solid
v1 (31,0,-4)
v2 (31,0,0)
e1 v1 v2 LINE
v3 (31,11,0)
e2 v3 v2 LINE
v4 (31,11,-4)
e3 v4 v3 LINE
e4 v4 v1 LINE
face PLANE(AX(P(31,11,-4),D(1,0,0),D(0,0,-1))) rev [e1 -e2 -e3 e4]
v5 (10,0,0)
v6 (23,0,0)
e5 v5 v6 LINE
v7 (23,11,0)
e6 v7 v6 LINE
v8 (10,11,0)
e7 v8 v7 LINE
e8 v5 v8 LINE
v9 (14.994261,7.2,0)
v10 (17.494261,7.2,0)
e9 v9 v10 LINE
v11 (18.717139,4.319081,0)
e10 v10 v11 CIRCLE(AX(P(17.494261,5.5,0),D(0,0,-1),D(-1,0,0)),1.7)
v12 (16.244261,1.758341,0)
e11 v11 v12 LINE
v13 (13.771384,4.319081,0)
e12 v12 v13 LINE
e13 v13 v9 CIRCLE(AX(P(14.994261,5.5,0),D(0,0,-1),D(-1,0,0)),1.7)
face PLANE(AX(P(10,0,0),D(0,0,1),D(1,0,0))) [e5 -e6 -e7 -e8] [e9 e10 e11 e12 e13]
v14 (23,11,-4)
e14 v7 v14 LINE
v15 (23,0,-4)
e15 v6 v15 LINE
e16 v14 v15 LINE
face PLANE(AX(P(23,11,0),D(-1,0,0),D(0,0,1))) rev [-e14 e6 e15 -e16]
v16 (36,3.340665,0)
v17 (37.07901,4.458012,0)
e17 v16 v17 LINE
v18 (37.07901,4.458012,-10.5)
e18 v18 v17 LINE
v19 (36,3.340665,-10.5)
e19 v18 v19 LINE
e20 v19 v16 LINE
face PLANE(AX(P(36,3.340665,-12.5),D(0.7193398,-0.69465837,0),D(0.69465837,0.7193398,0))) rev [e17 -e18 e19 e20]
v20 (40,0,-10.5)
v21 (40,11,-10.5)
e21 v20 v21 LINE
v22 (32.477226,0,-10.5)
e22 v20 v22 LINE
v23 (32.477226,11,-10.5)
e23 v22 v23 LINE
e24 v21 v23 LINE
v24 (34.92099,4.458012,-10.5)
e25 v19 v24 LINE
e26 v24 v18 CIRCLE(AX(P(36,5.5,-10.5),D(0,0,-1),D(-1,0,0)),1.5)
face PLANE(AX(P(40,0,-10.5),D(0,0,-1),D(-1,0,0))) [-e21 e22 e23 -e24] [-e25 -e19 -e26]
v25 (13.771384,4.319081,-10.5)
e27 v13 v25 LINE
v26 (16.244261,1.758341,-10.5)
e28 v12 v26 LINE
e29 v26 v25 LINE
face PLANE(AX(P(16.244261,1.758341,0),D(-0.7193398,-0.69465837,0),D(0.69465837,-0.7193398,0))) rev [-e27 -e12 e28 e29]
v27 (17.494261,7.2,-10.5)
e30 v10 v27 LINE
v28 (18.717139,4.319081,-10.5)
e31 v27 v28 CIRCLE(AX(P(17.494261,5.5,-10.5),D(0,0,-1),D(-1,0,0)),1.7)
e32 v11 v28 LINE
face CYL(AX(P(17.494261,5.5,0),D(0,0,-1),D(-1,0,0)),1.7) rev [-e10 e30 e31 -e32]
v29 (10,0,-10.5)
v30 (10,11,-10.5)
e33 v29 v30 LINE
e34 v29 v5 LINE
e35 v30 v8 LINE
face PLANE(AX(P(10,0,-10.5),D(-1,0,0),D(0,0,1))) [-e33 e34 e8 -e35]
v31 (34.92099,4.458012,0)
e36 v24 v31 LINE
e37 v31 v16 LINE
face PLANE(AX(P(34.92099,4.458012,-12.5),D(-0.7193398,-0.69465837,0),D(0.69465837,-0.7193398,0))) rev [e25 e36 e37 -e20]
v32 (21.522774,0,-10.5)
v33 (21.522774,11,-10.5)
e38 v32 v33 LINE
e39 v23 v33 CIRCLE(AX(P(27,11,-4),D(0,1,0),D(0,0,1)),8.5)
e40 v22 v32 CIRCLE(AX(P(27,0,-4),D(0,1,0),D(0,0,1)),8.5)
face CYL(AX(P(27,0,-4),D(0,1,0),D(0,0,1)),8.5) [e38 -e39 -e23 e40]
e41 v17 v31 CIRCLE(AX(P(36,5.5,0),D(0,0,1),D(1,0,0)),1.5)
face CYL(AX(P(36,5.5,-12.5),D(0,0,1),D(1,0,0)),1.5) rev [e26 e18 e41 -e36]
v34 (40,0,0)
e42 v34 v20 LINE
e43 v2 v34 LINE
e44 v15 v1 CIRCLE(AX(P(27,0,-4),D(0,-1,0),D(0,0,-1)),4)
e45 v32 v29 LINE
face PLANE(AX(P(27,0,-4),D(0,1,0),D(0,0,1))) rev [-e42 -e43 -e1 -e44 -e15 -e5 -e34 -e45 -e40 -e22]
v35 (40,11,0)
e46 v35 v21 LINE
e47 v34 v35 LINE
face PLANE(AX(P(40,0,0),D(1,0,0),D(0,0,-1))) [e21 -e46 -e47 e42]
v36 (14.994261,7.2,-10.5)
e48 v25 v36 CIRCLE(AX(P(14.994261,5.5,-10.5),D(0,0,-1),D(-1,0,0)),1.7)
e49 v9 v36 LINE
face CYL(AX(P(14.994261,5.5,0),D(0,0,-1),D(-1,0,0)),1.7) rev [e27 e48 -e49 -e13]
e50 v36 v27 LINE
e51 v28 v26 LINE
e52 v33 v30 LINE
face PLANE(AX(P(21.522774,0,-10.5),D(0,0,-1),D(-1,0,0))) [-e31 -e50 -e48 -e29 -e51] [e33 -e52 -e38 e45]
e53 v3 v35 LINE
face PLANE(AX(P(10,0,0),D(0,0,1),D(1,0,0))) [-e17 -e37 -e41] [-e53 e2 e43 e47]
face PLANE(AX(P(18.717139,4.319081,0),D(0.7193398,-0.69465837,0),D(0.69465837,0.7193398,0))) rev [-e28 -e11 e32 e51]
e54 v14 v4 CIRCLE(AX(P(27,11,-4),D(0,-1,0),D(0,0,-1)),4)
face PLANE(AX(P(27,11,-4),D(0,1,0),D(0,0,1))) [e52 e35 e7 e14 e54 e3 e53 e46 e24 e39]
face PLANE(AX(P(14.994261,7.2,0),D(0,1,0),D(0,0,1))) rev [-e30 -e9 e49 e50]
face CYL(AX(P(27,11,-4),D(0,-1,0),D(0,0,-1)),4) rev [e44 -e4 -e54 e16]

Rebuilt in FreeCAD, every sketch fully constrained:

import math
import FreeCAD as App
import Part
import Sketcher
Q = App.Units.Quantity

doc = App.newDocument("Part")
body = doc.addObject("PartDesign::Body", "Body")

# Sketch on XZ plane
sketch1 = body.newObject("Sketcher::SketchObject", "Sketch")
sketch1.AttachmentSupport = (doc.getObject("XZ_Plane"), [""])
sketch1.MapMode = "FlatFace"
sketch1.AttachmentOffset = App.Placement(App.Vector(0, 0, -11), App.Rotation())
sketch1.addGeometry(Part.LineSegment(App.Vector(10, 0, 0), App.Vector(40, 0, 0)), False)
sketch1.addGeometry(Part.LineSegment(App.Vector(40, 0, 0), App.Vector(40, -10, 0)), False)
sketch1.addGeometry(Part.LineSegment(App.Vector(40, -10, 0), App.Vector(32, -10, 0)), False)
sketch1.addGeometry(Part.ArcOfCircle(Part.Circle(App.Vector(27, -4, 0), App.Vector(0, 0, 1), 8), math.radians(-130), math.radians(-50)), False)
sketch1.addGeometry(Part.LineSegment(App.Vector(22, -10, 0), App.Vector(10, -10, 0)), False)
sketch1.addGeometry(Part.LineSegment(App.Vector(10, -10, 0), App.Vector(10, 0, 0)), False)
sketch1.addConstraint(Sketcher.Constraint("Coincident", 0, 2, 1, 1))
sketch1.addConstraint(Sketcher.Constraint("Coincident", 1, 2, 2, 1))
sketch1.addConstraint(Sketcher.Constraint("Coincident", 2, 2, 3, 2))
sketch1.addConstraint(Sketcher.Constraint("Coincident", 3, 1, 4, 1))
sketch1.addConstraint(Sketcher.Constraint("Coincident", 4, 2, 5, 1))
sketch1.addConstraint(Sketcher.Constraint("Coincident", 5, 2, 0, 1))
sketch1.addConstraint(Sketcher.Constraint("Horizontal", 0))
sketch1.addConstraint(Sketcher.Constraint("Vertical", 1))
sketch1.addConstraint(Sketcher.Constraint("Horizontal", 2))
sketch1.addConstraint(Sketcher.Constraint("Horizontal", 4))
sketch1.addConstraint(Sketcher.Constraint("Vertical", 5))
sketch1.addConstraint(Sketcher.Constraint("PointOnObject", 0, 2, -1))
sketch1.addConstraint(Sketcher.Constraint("Horizontal", 2, 2, 3, 1))
sketch1.addConstraint(Sketcher.Constraint("Radius", 3, Q("8.5 mm")))
sketch1.addConstraint(Sketcher.Constraint("DistanceX", 0, 1, 0, 2, Q("30 mm")))
sketch1.addConstraint(Sketcher.Constraint("DistanceY", 1, 2, 1, 1, Q("10.5 mm")))
sketch1.addConstraint(Sketcher.Constraint("DistanceX", -1, 1, 3, 3, Q("27 mm")))
sketch1.addConstraint(Sketcher.Constraint("DistanceY", 3, 3, -1, 1, Q("4 mm")))
sketch1.addConstraint(Sketcher.Constraint("DistanceX", -1, 1, 0, 2, Q("40 mm")))
pad1 = body.newObject("PartDesign::Pad", "Pad")
pad1.Profile = sketch1
pad1.Length = 11

# Sketch on XZ plane
sketch2 = body.newObject("Sketcher::SketchObject", "Sketch001")
sketch2.AttachmentSupport = (doc.getObject("XZ_Plane"), [""])
sketch2.MapMode = "FlatFace"
sketch2.addGeometry(Part.LineSegment(App.Vector(31, 0, 0), App.Vector(23, 0, 0)), False)
sketch2.addGeometry(Part.LineSegment(App.Vector(23, 0, 0), App.Vector(23, -4, 0)), False)
sketch2.addGeometry(Part.ArcOfCircle(Part.Circle(App.Vector(27, -4, 0), App.Vector(0, 0, 1), 4), math.radians(180), math.radians(360)), False)
sketch2.addGeometry(Part.LineSegment(App.Vector(31, -4, 0), App.Vector(31, 0, 0)), False)
sketch2.addConstraint(Sketcher.Constraint("Coincident", 0, 2, 1, 1))
sketch2.addConstraint(Sketcher.Constraint("Tangent", 1, 2, 2, 1))
sketch2.addConstraint(Sketcher.Constraint("Tangent", 2, 2, 3, 1))
sketch2.addConstraint(Sketcher.Constraint("Coincident", 3, 2, 0, 1))
sketch2.addConstraint(Sketcher.Constraint("Horizontal", 0))
sketch2.addConstraint(Sketcher.Constraint("Vertical", 1))
sketch2.addConstraint(Sketcher.Constraint("Vertical", 3))
sketch2.addConstraint(Sketcher.Constraint("PointOnObject", 0, 2, -1))
sketch2.addConstraint(Sketcher.Constraint("Radius", 2, Q("4 mm")))
sketch2.addConstraint(Sketcher.Constraint("DistanceY", 1, 2, 1, 1, Q("4 mm")))
sketch2.addConstraint(Sketcher.Constraint("DistanceX", -1, 1, 2, 3, Q("27 mm")))
pocket1 = body.newObject("PartDesign::Pocket", "Pocket")
pocket1.Profile = sketch2
pocket1.Type = "ThroughAll"

# Sketch on XY plane
sketch3 = body.newObject("Sketcher::SketchObject", "Sketch002")
sketch3.AttachmentSupport = (doc.getObject("XY_Plane"), [""])
sketch3.MapMode = "FlatFace"
sketch3.addGeometry(Part.LineSegment(App.Vector(34.9, 4.5, 0), App.Vector(36, 3.3, 0)), False)
sketch3.addGeometry(Part.LineSegment(App.Vector(36, 3.3, 0), App.Vector(37.1, 4.5, 0)), False)
sketch3.addGeometry(Part.ArcOfCircle(Part.Circle(App.Vector(36, 5.5, 0), App.Vector(0, 0, 1), 1.5), math.radians(-44), math.radians(224)), False)
sketch3.addConstraint(Sketcher.Constraint("Coincident", 0, 2, 1, 1))
sketch3.addConstraint(Sketcher.Constraint("Tangent", 1, 2, 2, 1))
sketch3.addConstraint(Sketcher.Constraint("Tangent", 2, 2, 0, 1))
sketch3.addConstraint(Sketcher.Constraint("Horizontal", 1, 2, 2, 2))
sketch3.addConstraint(Sketcher.Constraint("Radius", 2, Q("1.5 mm")))
sketch3.addConstraint(Sketcher.Constraint("Angle", 0, Q("-46 deg")))
sketch3.addConstraint(Sketcher.Constraint("DistanceX", -1, 1, 2, 3, Q("36 mm")))
sketch3.addConstraint(Sketcher.Constraint("DistanceY", -1, 1, 2, 3, Q("5.5 mm")))
pocket2 = body.newObject("PartDesign::Pocket", "Pocket001")
pocket2.Profile = sketch3
pocket2.Type = "ThroughAll"

# Sketch on XY plane
sketch4 = body.newObject("Sketcher::SketchObject", "Sketch003")
sketch4.AttachmentSupport = (doc.getObject("XY_Plane"), [""])
sketch4.MapMode = "FlatFace"
sketch4.AttachmentOffset = App.Placement(App.Vector(0, 0, -10.5), App.Rotation())
sketch4.addGeometry(Part.LineSegment(App.Vector(16.2, 1.8, 0), App.Vector(13.8, 4.3, 0)), False)
sketch4.addGeometry(Part.ArcOfCircle(Part.Circle(App.Vector(15, 5.5, 0), App.Vector(0, 0, 1), 1.7), math.radians(90), math.radians(224)), False)
sketch4.addGeometry(Part.LineSegment(App.Vector(15, 7.2, 0), App.Vector(17.5, 7.2, 0)), False)
sketch4.addGeometry(Part.ArcOfCircle(Part.Circle(App.Vector(17.5, 5.5, 0), App.Vector(0, 0, 1), 1.7), math.radians(-44), math.radians(90)), False)
sketch4.addGeometry(Part.LineSegment(App.Vector(18.7, 4.3, 0), App.Vector(16.2, 1.8, 0)), False)
sketch4.addConstraint(Sketcher.Constraint("Tangent", 0, 2, 1, 2))
sketch4.addConstraint(Sketcher.Constraint("Tangent", 1, 1, 2, 1))
sketch4.addConstraint(Sketcher.Constraint("Tangent", 2, 2, 3, 2))
sketch4.addConstraint(Sketcher.Constraint("Tangent", 3, 1, 4, 1))
sketch4.addConstraint(Sketcher.Constraint("Coincident", 4, 2, 0, 1))
sketch4.addConstraint(Sketcher.Constraint("Horizontal", 2))
sketch4.addConstraint(Sketcher.Constraint("Equal", 1, 3))
sketch4.addConstraint(Sketcher.Constraint("Horizontal", 0, 2, 3, 1))
sketch4.addConstraint(Sketcher.Constraint("Radius", 1, Q("1.7 mm")))
sketch4.addConstraint(Sketcher.Constraint("Angle", 0, Q("134 deg")))
sketch4.addConstraint(Sketcher.Constraint("DistanceX", 2, 1, 2, 2, Q("2.5 mm")))
sketch4.addConstraint(Sketcher.Constraint("DistanceY", -1, 1, 1, 3, Q("5.5 mm")))
sketch4.addConstraint(Sketcher.Constraint("DistanceX", -1, 1, 1, 3, Q("14.994261 mm")))
pocket3 = body.newObject("PartDesign::Pocket", "Pocket002")
pocket3.Profile = sketch4
pocket3.Type = "ThroughAll"
pocket3.Reversed = True

doc.recompute()
